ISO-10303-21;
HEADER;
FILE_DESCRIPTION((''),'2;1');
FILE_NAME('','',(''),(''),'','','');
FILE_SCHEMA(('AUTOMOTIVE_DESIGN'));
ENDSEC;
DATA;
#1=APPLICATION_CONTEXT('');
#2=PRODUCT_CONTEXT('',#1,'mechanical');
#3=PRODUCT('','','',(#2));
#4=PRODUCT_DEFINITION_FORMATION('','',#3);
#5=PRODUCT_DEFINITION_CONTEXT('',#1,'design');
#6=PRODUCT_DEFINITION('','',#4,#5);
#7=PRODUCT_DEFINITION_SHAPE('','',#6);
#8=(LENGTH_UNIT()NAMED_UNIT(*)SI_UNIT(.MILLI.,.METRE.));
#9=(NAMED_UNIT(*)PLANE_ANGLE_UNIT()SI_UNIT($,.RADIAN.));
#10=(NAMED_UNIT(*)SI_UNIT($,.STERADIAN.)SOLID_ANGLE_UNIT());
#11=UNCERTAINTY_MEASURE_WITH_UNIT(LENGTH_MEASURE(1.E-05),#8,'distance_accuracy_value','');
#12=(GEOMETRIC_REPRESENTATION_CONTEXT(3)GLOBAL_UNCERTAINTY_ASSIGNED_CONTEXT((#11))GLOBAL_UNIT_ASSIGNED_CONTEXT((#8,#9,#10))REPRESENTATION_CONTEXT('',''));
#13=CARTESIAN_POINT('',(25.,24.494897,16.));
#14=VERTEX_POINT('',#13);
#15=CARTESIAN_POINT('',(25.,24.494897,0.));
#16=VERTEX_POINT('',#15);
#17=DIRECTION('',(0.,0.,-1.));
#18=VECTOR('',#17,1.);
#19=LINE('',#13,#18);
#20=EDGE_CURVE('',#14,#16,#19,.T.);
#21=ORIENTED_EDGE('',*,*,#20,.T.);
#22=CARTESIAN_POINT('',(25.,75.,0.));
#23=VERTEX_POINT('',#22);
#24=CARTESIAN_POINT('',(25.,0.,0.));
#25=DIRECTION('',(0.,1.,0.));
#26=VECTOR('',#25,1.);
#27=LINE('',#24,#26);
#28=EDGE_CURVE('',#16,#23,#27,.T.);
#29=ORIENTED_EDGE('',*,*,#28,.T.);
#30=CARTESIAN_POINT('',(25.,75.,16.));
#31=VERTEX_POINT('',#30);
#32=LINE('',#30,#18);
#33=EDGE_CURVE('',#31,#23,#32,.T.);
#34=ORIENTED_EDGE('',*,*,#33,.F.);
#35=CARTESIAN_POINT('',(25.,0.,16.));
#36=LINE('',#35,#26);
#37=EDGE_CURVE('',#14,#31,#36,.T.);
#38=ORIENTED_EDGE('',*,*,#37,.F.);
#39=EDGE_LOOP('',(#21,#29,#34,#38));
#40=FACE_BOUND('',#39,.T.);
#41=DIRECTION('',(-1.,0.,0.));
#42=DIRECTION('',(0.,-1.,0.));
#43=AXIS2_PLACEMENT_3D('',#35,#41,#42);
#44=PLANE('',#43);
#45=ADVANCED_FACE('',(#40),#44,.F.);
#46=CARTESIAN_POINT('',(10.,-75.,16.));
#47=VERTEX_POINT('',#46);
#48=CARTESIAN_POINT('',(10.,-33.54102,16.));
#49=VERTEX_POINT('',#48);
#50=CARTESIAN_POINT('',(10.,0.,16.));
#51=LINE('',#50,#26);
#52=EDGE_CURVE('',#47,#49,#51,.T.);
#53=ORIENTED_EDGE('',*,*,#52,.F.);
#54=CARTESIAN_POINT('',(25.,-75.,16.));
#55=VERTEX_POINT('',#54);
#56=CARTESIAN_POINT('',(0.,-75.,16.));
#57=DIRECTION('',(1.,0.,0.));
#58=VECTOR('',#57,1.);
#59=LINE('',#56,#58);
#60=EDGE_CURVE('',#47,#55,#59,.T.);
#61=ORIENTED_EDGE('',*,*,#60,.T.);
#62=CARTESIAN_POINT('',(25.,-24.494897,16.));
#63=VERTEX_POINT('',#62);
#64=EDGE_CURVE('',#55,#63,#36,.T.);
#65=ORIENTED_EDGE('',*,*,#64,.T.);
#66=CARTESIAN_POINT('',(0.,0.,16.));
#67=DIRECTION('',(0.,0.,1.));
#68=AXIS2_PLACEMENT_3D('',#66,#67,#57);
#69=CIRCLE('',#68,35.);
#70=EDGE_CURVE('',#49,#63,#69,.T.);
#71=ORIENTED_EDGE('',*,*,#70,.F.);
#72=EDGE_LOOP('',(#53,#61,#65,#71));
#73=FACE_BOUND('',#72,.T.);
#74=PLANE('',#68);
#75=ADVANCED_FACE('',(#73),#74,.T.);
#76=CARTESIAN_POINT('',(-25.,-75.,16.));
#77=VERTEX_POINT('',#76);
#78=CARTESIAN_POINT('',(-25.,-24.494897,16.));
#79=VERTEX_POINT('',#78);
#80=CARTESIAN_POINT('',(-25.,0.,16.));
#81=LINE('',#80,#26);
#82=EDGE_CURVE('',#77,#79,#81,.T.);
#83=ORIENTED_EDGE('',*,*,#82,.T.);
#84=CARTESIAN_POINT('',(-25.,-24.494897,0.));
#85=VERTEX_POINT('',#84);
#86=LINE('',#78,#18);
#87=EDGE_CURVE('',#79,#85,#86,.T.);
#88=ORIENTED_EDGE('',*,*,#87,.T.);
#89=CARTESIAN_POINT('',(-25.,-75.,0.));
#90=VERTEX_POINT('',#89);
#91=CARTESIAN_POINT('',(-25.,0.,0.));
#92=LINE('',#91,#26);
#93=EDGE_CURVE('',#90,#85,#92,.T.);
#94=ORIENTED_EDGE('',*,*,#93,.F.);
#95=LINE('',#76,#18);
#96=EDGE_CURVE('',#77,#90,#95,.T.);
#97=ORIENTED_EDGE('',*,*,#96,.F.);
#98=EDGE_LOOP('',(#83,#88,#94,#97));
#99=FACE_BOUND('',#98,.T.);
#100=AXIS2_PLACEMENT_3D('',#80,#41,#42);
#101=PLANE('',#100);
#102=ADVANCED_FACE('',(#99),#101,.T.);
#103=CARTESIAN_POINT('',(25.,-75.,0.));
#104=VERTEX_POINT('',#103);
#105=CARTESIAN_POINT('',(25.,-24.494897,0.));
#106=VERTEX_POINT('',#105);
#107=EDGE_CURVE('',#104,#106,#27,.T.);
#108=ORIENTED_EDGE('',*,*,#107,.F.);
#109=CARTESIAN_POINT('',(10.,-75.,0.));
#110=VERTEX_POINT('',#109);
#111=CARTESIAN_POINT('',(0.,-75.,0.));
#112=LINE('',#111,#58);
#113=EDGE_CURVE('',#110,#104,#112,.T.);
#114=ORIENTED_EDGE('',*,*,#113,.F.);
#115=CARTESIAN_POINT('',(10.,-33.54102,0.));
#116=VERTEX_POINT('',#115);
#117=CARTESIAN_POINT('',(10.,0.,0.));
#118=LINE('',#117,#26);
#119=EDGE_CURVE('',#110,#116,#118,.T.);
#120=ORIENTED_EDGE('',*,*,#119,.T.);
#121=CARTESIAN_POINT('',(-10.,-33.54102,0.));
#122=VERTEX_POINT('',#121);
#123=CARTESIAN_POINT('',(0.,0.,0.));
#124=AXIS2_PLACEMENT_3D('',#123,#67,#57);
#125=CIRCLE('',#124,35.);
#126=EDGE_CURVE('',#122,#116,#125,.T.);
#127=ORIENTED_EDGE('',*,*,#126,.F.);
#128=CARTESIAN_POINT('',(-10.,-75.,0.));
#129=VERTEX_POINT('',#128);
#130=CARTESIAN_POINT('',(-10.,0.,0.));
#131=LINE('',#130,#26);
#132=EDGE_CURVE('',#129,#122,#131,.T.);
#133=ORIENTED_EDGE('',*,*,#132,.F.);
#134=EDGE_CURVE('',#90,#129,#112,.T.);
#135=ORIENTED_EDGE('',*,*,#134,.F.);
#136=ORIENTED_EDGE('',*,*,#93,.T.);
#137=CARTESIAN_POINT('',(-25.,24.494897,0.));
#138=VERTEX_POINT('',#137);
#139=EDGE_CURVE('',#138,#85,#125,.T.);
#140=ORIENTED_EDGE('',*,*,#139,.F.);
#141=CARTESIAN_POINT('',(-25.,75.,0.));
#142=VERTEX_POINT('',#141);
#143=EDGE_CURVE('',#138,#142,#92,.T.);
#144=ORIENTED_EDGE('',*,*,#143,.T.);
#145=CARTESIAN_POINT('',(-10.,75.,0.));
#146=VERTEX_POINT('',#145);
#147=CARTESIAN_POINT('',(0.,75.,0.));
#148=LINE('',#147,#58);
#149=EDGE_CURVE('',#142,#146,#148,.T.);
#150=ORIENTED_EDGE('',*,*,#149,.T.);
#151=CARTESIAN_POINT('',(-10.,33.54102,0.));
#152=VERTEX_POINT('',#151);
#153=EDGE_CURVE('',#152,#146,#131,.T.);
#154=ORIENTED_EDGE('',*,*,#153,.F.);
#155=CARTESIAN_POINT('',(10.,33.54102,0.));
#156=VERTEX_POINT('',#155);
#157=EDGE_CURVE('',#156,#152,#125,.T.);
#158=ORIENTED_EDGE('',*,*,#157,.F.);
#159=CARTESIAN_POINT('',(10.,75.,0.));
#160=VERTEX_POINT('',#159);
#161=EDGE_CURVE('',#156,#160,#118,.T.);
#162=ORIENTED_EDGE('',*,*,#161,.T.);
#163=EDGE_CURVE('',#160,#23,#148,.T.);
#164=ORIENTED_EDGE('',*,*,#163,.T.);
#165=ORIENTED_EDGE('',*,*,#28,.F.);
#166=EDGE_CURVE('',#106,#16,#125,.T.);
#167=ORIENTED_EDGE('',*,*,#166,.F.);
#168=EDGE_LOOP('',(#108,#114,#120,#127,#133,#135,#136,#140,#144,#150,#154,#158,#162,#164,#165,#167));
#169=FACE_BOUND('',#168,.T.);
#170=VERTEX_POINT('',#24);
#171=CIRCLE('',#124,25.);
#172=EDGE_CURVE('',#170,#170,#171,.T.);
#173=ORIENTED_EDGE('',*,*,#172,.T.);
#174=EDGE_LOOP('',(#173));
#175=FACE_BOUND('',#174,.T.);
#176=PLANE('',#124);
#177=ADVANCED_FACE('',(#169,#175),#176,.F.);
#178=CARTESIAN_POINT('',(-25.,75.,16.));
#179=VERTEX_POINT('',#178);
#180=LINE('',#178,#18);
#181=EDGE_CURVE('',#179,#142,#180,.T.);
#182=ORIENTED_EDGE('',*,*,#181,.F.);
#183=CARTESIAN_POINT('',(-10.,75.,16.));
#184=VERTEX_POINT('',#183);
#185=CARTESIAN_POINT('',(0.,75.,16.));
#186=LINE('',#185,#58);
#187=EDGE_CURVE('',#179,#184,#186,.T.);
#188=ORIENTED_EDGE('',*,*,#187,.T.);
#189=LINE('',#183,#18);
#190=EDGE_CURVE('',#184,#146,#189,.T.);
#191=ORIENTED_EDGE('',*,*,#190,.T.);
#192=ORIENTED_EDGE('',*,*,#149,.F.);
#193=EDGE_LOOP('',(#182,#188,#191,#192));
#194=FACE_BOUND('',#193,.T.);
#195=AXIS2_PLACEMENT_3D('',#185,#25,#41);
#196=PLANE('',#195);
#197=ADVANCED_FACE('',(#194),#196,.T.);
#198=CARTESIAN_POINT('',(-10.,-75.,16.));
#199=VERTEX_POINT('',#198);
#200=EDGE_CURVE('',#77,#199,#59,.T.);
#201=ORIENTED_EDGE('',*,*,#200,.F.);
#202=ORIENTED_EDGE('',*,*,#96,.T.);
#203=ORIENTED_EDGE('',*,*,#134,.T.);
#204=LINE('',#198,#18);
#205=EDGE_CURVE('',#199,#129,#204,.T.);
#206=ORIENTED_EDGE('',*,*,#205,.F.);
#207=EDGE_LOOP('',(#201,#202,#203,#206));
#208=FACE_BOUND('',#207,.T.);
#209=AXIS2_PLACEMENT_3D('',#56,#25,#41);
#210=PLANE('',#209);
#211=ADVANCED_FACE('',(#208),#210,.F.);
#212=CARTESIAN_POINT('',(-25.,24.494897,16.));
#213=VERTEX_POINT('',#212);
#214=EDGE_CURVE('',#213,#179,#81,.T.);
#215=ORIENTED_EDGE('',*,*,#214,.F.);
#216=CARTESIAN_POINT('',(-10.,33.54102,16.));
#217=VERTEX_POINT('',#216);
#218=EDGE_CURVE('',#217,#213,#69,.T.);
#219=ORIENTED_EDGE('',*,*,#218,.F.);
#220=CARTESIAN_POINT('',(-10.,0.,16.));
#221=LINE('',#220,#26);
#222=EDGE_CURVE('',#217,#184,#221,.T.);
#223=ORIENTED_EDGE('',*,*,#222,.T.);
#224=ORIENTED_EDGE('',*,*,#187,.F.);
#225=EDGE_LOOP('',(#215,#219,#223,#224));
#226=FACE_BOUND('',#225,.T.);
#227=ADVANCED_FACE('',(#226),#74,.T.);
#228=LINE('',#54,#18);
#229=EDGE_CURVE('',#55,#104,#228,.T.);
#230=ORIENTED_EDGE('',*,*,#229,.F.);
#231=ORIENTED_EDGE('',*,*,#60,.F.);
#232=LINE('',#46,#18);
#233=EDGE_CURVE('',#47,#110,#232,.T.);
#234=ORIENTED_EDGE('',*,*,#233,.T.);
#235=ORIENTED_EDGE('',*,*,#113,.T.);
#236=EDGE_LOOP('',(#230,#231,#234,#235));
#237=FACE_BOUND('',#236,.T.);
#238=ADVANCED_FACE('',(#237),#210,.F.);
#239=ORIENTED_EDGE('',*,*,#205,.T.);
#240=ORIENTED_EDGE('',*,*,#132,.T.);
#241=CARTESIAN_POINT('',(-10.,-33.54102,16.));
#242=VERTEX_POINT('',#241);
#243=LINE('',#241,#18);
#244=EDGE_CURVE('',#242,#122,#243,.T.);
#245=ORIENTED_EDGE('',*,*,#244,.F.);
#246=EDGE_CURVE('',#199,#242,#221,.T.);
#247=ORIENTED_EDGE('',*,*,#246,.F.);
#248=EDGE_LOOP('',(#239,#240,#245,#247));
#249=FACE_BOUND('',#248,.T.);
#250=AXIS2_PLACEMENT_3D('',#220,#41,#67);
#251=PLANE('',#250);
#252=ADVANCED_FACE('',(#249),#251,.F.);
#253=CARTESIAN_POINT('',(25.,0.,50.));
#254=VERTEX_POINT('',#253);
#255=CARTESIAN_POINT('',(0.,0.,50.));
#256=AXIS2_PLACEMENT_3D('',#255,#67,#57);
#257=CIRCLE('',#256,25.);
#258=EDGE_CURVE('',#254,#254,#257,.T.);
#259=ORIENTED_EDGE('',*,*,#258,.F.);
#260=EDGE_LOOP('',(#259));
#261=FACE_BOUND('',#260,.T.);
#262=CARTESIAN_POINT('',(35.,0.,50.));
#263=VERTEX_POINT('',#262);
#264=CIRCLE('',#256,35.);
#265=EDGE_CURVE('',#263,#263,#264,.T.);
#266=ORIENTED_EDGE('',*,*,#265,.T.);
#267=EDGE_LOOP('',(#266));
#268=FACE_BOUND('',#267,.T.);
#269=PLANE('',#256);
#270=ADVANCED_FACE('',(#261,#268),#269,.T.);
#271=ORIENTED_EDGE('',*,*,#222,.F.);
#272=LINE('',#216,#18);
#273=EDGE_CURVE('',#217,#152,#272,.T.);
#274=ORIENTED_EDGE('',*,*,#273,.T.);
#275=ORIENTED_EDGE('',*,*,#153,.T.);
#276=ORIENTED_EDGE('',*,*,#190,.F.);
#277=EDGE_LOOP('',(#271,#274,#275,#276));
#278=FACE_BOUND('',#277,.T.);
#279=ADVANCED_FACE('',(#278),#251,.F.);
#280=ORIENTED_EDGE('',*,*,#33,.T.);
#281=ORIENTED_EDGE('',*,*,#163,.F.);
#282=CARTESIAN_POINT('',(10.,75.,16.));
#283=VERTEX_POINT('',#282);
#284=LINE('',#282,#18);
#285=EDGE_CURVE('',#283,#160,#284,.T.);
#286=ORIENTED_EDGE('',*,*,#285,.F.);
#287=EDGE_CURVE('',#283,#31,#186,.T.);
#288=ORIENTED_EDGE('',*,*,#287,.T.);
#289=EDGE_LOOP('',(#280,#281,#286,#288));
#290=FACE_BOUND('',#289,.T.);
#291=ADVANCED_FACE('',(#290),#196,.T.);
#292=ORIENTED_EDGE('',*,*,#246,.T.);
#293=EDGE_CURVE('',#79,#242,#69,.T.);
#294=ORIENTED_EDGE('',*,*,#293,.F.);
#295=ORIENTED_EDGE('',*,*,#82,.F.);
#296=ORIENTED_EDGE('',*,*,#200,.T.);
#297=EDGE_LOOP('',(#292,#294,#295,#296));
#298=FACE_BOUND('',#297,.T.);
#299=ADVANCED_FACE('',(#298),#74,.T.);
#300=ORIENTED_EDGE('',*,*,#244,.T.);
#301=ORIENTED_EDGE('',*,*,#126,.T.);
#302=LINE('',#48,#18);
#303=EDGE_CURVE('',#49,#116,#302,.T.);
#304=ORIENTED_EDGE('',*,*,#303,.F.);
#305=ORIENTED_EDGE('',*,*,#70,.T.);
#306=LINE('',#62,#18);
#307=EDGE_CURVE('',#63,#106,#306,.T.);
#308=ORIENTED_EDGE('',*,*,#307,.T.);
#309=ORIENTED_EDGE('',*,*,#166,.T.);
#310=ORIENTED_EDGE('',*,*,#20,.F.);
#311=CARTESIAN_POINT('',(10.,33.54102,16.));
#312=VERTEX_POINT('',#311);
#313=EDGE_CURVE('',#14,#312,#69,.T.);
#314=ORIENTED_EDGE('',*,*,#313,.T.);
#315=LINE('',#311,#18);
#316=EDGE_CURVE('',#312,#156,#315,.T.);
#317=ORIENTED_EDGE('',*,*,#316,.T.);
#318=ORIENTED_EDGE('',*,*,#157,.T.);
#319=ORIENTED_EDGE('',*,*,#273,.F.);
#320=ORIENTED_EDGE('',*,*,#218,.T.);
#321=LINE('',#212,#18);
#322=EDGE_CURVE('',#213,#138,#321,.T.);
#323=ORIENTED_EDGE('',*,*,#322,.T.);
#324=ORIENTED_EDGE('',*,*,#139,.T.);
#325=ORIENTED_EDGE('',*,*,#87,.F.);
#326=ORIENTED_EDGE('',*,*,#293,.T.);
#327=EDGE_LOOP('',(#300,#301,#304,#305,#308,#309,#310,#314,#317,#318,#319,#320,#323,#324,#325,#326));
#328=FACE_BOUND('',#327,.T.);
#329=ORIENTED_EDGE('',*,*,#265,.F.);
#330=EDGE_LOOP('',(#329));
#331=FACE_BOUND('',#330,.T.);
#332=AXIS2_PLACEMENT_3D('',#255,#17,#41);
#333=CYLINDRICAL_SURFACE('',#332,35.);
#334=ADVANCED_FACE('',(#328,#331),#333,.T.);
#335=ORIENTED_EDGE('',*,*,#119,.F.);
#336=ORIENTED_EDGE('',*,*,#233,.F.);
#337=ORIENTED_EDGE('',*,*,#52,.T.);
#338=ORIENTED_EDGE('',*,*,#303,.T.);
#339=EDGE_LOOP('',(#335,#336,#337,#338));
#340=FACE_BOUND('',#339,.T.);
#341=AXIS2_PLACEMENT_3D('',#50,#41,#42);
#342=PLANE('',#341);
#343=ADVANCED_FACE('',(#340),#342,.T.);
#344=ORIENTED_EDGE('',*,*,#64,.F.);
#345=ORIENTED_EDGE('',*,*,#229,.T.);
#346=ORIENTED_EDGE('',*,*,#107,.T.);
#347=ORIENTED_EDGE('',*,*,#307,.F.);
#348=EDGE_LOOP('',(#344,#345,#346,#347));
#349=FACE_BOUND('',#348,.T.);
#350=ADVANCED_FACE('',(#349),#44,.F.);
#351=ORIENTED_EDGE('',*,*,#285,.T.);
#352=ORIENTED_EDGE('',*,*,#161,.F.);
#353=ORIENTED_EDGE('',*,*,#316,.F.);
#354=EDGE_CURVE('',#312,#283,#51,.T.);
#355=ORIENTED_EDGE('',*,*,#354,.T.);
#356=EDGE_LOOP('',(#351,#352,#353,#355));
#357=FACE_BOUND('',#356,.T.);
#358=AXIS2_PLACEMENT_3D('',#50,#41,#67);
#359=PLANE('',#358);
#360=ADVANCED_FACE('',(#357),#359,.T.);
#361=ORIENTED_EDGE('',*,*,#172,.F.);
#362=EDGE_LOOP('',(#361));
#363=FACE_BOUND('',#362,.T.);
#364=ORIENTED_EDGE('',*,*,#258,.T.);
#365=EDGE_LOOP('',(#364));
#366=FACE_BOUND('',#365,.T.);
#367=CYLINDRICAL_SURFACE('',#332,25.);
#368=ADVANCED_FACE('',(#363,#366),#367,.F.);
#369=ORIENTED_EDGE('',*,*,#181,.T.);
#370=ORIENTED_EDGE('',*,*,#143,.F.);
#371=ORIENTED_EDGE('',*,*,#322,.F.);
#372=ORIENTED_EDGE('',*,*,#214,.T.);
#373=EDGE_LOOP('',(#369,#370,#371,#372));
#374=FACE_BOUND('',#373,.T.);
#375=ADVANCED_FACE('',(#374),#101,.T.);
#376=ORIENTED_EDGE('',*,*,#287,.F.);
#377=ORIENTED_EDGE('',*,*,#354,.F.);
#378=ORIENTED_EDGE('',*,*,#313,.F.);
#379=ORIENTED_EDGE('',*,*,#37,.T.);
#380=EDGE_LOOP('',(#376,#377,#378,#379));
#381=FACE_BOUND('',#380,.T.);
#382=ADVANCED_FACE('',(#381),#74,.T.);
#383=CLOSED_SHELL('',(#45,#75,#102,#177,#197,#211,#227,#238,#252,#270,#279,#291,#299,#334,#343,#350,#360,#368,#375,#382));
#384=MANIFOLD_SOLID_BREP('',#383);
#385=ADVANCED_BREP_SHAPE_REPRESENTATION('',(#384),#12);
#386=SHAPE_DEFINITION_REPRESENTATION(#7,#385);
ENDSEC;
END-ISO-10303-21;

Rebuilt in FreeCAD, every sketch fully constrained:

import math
import FreeCAD as App
import Part
import Sketcher
Q = App.Units.Quantity

doc = App.newDocument("Part")
body = doc.addObject("PartDesign::Body", "Body")

# Sketch on XY plane
sketch1 = doc.addObject("Sketcher::SketchObject", "Sketch")
body.addObject(sketch1)
sketch1.AttachmentSupport = (doc.XY_Plane, [""])
sketch1.MapMode = "FlatFace"
sketch1.addGeometry([
    Part.Circle(App.Vector(0, 0, 0), App.Vector(0, 0, 1), 35),
    Part.Circle(App.Vector(0, 0, 0), App.Vector(0, 0, 1), 25),
], False)
sketch1.addConstraint([
    Sketcher.Constraint("Coincident", 0, 3, -1, 1),
    Sketcher.Constraint("Coincident", 1, 3, -1, 1),
    Sketcher.Constraint("Diameter", 0, Q("70 mm")),
    Sketcher.Constraint("Diameter", 1, Q("50 mm")),
])
pad1 = doc.addObject("PartDesign::Pad", "Pad")
body.addObject(pad1)
pad1.Profile = sketch1
pad1.Length = 50

# Sketch on XY plane
sketch2 = doc.addObject("Sketcher::SketchObject", "Sketch001")
body.addObject(sketch2)
sketch2.AttachmentSupport = (doc.XY_Plane, [""])
sketch2.MapMode = "FlatFace"
sketch2.addGeometry([
    Part.LineSegment(App.Vector(-25, 75, 0), App.Vector(-25, 24, 0)),  # 0
    Part.ArcOfCircle(Part.Circle(App.Vector(0, 0, 0), App.Vector(0, 0, 1), 35), math.radians(107), math.radians(136)),  # 1
    Part.LineSegment(App.Vector(-10, 34, 0), App.Vector(-10, 75, 0)),  # 2
    Part.LineSegment(App.Vector(-10, 75, 0), App.Vector(-25, 75, 0)),  # 3
    Part.ArcOfCircle(Part.Circle(App.Vector(0, 0, 0), App.Vector(0, 0, 1), 35), math.radians(44), math.radians(73)),  # 4
    Part.LineSegment(App.Vector(25, 24, 0), App.Vector(25, 75, 0)),  # 5
    Part.LineSegment(App.Vector(25, 75, 0), App.Vector(10, 75, 0)),  # 6
    Part.LineSegment(App.Vector(10, 75, 0), App.Vector(10, 34, 0)),  # 7
    Part.LineSegment(App.Vector(10, -34, 0), App.Vector(10, -75, 0)),  # 8
    Part.LineSegment(App.Vector(10, -75, 0), App.Vector(25, -75, 0)),  # 9
    Part.LineSegment(App.Vector(25, -75, 0), App.Vector(25, -24, 0)),  # 10
    Part.ArcOfCircle(Part.Circle(App.Vector(0, 0, 0), App.Vector(0, 0, 1), 35), math.radians(-73), math.radians(-44)),  # 11
    Part.LineSegment(App.Vector(-10, -75, 0), App.Vector(-10, -34, 0)),  # 12
    Part.ArcOfCircle(Part.Circle(App.Vector(0, 0, 0), App.Vector(0, 0, 1), 35), math.radians(-136), math.radians(-107)),  # 13
    Part.LineSegment(App.Vector(-25, -24, 0), App.Vector(-25, -75, 0)),  # 14
    Part.LineSegment(App.Vector(-25, -75, 0), App.Vector(-10, -75, 0)),  # 15
], False)
sketch2.addConstraint([
    Sketcher.Constraint("Coincident", 0, 2, 1, 2),
    Sketcher.Constraint("Coincident", 1, 1, 2, 1),
    Sketcher.Constraint("Coincident", 2, 2, 3, 1),
    Sketcher.Constraint("Coincident", 3, 2, 0, 1),
    Sketcher.Constraint("Coincident", 4, 1, 5, 1),
    Sketcher.Constraint("Coincident", 5, 2, 6, 1),
    Sketcher.Constraint("Coincident", 6, 2, 7, 1),
    Sketcher.Constraint("Coincident", 7, 2, 4, 2),
    Sketcher.Constraint("Coincident", 8, 2, 9, 1),
    Sketcher.Constraint("Coincident", 9, 2, 10, 1),
    Sketcher.Constraint("Coincident", 10, 2, 11, 2),
    Sketcher.Constraint("Coincident", 11, 1, 8, 1),
    Sketcher.Constraint("Coincident", 12, 2, 13, 2),
    Sketcher.Constraint("Coincident", 13, 1, 14, 1),
    Sketcher.Constraint("Coincident", 14, 2, 15, 1),
    Sketcher.Constraint("Coincident", 15, 2, 12, 1),
    Sketcher.Constraint("Vertical", 0),
    Sketcher.Constraint("Vertical", 2),
    Sketcher.Constraint("Horizontal", 3),
    Sketcher.Constraint("Vertical", 5),
    Sketcher.Constraint("Horizontal", 6),
    Sketcher.Constraint("Vertical", 7),
    Sketcher.Constraint("Vertical", 8),
    Sketcher.Constraint("Horizontal", 9),
    Sketcher.Constraint("Vertical", 10),
    Sketcher.Constraint("Vertical", 12),
    Sketcher.Constraint("Vertical", 14),
    Sketcher.Constraint("Horizontal", 15),
    Sketcher.Constraint("Coincident", 1, 3, -1, 1),
    Sketcher.Constraint("Coincident", 4, 3, -1, 1),
    Sketcher.Constraint("Coincident", 11, 3, -1, 1),
    Sketcher.Constraint("Coincident", 13, 3, -1, 1),
    Sketcher.Constraint("Equal", 1, 4),
    Sketcher.Constraint("Equal", 4, 11),
    Sketcher.Constraint("Equal", 11, 13),
    Sketcher.Constraint("Symmetric", 2, 2, 8, 2, -1, 1),
    Sketcher.Constraint("Symmetric", 5, 2, 14, 2, -1, 1),
    Sketcher.Constraint("Symmetric", 3, 2, 5, 2, -2),
    Sketcher.Constraint("Horizontal", 1, 1, 7, 2),
    Sketcher.Constraint("Horizontal", 11, 1, 12, 2),
    Sketcher.Constraint("Horizontal", 10, 2, 13, 1),
    Sketcher.Constraint("Radius", 1, Q("35 mm")),
    Sketcher.Constraint("DistanceX", 3, 2, 3, 1, Q("15 mm")),
    Sketcher.Constraint("DistanceX", 0, 2, -1, 1, Q("25 mm")),
    Sketcher.Constraint("DistanceY", -1, 1, 2, 2, Q("75 mm")),
])
pad2 = doc.addObject("PartDesign::Pad", "Pad001")
body.addObject(pad2)
pad2.Profile = sketch2
pad2.Length = 16

doc.recompute()
